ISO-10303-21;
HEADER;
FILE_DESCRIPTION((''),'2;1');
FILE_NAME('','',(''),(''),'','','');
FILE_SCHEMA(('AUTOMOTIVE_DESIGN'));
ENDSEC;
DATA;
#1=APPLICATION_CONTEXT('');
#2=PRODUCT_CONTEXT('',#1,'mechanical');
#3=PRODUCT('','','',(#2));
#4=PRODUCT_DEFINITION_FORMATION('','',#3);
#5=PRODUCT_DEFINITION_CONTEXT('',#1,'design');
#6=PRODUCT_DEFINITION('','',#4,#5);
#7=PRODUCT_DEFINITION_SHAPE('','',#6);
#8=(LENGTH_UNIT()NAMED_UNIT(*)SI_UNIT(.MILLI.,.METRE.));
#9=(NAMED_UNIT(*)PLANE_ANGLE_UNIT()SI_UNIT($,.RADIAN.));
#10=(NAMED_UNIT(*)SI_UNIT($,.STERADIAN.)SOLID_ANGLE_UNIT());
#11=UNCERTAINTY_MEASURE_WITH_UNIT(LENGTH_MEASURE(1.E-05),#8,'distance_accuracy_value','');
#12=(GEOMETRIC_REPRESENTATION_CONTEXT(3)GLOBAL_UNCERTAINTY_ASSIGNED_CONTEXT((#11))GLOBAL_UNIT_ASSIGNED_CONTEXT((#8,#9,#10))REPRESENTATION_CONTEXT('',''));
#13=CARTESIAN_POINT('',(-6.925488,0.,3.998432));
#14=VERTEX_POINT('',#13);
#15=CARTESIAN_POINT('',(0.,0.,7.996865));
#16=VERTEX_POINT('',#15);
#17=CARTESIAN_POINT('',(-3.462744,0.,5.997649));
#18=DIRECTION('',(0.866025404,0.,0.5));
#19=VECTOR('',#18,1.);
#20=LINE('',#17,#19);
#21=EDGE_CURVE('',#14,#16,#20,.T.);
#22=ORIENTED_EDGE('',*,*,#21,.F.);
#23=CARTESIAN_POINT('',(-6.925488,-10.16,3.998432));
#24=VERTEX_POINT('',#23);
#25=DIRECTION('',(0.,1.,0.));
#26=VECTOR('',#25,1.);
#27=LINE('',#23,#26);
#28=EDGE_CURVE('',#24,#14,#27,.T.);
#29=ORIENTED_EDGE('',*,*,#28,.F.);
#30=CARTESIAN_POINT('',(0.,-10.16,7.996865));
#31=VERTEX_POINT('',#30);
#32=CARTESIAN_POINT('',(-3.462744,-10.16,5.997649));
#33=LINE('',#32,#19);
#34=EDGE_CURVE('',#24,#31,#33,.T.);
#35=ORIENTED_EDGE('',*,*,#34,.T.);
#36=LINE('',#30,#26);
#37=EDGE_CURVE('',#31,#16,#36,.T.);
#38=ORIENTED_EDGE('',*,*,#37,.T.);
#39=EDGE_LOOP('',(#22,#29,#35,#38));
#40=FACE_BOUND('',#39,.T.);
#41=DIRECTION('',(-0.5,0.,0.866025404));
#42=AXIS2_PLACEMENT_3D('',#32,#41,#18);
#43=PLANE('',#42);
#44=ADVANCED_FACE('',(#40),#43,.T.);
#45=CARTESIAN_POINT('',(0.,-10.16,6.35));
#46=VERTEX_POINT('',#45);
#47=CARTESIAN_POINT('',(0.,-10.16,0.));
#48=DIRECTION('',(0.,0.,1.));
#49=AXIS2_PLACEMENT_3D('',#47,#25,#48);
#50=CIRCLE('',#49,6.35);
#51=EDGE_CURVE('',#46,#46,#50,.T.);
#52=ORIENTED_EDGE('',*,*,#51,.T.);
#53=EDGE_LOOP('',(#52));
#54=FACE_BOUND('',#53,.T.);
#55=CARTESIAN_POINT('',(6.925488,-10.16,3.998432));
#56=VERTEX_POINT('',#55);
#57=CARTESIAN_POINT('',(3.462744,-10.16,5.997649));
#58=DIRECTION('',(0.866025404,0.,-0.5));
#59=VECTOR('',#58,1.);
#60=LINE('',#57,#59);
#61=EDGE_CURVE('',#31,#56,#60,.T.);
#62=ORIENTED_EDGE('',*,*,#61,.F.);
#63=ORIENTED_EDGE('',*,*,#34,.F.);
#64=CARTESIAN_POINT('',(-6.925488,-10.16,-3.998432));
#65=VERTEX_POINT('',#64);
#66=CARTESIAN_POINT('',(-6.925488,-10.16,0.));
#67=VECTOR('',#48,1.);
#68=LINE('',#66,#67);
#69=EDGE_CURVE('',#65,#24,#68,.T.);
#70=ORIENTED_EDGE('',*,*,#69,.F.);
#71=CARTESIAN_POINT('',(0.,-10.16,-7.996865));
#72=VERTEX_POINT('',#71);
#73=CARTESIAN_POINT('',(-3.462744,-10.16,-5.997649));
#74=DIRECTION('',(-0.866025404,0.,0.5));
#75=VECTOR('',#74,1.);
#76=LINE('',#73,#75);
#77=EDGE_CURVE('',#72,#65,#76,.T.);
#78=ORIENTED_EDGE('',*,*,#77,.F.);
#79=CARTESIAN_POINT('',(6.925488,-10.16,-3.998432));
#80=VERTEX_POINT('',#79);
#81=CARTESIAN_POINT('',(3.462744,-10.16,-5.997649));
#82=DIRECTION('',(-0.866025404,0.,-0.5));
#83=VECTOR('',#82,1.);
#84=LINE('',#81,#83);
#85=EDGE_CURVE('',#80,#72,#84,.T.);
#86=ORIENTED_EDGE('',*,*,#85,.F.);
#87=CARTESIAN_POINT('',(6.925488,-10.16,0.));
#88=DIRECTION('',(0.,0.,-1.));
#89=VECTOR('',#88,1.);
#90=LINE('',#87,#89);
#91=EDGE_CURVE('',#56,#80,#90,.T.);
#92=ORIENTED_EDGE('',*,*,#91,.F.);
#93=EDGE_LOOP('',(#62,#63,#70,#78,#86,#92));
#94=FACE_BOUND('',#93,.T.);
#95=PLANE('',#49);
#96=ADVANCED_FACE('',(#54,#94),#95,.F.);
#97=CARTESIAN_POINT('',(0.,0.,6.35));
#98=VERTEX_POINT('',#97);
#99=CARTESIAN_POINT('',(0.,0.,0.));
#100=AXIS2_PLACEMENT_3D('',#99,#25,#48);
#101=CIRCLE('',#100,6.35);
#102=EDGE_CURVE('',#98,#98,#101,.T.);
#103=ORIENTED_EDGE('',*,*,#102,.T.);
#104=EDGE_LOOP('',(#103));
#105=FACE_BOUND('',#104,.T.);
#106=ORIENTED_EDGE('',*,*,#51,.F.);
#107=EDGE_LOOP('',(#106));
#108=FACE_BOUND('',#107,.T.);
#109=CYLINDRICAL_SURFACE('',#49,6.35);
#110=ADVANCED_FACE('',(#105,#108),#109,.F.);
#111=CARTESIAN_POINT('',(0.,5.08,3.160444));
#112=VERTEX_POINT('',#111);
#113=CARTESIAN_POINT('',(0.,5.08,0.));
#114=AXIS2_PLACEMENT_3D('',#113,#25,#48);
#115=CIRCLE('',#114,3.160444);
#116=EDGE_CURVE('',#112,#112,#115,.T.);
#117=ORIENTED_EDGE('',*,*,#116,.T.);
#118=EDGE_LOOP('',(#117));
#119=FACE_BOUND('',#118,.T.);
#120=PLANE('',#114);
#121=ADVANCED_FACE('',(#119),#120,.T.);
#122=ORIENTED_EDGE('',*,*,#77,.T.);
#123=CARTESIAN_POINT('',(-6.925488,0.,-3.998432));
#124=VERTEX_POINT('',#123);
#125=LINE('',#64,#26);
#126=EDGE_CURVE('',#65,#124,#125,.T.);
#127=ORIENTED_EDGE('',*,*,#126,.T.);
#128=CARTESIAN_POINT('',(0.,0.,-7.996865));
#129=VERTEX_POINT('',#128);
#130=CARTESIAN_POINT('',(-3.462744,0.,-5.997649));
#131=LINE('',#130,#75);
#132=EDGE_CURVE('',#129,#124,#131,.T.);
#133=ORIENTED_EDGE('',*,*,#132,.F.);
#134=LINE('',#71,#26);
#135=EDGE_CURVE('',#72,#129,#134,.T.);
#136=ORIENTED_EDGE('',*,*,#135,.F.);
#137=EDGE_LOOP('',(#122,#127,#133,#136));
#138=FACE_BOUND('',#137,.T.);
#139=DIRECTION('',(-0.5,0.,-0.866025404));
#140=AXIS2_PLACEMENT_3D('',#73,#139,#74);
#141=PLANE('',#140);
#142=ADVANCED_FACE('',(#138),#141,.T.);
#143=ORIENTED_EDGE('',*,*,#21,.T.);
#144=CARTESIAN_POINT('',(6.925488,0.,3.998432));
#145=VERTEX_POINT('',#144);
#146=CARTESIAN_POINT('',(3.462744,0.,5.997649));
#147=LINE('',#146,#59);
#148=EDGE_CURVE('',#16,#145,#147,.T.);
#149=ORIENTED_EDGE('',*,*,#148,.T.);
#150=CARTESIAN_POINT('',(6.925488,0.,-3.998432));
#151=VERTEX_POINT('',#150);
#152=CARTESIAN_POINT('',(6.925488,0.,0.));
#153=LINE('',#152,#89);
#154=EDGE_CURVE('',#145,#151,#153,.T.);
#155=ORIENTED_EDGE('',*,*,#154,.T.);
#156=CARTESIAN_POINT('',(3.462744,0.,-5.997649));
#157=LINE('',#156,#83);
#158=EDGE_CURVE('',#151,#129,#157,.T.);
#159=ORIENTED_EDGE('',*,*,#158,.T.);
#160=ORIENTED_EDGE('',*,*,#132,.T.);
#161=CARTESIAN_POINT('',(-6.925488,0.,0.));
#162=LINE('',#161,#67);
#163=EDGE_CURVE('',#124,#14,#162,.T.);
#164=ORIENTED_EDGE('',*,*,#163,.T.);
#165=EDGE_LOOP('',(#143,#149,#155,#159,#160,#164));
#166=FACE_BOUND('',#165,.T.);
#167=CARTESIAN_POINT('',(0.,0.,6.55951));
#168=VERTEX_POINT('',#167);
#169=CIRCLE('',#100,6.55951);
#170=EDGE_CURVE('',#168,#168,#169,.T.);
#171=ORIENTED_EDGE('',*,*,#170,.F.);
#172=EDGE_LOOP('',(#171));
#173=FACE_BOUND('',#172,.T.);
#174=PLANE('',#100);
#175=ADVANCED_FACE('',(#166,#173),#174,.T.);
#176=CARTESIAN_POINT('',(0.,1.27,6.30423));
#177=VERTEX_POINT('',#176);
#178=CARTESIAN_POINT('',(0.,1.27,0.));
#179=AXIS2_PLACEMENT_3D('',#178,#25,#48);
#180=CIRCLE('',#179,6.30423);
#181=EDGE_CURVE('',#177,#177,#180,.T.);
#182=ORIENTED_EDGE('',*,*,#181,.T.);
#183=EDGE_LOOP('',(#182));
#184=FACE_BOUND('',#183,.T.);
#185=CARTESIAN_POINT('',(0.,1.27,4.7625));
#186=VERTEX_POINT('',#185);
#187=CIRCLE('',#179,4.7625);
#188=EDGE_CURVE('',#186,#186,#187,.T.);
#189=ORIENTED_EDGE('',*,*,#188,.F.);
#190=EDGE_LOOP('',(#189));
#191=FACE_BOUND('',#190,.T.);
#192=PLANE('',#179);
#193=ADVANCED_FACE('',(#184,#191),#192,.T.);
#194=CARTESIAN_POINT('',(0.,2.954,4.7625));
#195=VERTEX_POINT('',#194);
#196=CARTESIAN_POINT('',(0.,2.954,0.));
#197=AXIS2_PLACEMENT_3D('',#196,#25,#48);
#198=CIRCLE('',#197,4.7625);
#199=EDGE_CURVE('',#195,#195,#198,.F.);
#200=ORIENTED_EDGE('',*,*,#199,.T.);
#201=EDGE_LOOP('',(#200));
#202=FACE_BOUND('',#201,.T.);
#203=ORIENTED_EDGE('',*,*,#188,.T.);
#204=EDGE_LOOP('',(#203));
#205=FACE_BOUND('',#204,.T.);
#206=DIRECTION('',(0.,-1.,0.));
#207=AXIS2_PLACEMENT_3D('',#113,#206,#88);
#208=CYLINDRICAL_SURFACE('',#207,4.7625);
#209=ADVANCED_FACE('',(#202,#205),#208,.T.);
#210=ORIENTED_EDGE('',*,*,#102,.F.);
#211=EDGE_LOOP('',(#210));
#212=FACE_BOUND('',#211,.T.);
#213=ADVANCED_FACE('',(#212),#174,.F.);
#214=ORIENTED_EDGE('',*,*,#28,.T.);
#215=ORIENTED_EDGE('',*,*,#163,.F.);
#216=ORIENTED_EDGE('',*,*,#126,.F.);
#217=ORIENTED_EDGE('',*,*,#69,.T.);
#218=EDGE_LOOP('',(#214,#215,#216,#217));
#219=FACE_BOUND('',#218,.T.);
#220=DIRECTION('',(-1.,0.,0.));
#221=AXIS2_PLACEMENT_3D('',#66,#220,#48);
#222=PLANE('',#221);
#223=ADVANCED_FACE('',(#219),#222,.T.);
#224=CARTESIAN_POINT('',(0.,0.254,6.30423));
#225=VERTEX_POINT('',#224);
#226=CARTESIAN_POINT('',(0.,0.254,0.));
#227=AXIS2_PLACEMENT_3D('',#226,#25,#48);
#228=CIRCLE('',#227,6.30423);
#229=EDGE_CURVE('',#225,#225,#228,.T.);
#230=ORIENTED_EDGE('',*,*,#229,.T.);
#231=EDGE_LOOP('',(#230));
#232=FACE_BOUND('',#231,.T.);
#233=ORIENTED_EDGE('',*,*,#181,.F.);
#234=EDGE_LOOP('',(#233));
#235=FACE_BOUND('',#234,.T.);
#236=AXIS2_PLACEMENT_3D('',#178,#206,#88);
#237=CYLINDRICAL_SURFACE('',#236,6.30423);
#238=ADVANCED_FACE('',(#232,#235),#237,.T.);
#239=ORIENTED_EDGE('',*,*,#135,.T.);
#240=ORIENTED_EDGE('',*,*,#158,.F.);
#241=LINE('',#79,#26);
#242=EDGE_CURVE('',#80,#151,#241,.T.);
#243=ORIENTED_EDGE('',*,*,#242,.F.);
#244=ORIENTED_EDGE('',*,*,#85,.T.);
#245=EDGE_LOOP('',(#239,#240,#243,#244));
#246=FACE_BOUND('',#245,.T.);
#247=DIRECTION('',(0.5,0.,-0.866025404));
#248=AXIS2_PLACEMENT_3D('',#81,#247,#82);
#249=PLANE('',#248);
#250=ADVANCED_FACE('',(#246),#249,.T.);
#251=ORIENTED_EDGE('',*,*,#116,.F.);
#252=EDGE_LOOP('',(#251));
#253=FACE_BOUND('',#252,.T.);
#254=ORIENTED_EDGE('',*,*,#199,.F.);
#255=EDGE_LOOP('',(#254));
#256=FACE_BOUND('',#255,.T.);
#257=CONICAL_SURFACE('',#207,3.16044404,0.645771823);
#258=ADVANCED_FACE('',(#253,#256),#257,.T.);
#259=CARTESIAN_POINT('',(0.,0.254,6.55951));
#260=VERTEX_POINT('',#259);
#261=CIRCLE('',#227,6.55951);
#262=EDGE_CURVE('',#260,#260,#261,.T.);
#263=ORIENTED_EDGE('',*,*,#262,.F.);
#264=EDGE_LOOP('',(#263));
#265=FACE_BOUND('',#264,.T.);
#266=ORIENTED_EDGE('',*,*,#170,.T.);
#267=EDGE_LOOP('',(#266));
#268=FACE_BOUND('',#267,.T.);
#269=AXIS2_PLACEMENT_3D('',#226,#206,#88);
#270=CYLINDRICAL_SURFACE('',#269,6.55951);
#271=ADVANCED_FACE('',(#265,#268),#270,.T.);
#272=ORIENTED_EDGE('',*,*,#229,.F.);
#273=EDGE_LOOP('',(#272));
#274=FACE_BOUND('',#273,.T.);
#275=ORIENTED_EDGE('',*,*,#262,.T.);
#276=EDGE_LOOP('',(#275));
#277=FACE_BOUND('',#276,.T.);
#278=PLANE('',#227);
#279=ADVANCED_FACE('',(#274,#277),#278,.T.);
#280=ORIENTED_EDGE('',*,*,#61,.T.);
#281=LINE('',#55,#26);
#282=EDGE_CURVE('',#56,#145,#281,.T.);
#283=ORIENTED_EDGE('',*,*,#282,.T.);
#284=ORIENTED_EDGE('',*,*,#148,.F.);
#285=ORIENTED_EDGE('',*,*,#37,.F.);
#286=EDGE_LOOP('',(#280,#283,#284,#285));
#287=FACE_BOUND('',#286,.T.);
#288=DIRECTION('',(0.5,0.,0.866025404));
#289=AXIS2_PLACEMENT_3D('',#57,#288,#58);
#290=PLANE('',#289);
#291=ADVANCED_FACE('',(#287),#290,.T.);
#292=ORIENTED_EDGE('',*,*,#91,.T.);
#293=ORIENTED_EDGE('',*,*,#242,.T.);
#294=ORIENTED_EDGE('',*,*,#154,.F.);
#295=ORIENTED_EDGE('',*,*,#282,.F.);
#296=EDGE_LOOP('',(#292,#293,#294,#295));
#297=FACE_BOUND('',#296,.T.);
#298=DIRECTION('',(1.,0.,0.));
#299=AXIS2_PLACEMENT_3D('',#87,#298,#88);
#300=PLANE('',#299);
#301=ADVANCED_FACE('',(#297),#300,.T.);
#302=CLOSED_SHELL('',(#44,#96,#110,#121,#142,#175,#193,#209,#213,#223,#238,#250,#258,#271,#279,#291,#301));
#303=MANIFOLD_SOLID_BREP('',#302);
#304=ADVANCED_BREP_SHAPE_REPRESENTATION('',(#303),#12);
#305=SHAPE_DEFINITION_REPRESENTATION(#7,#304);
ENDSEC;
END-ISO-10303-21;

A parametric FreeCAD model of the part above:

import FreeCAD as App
import Part
import Sketcher
from FreeCAD import Vector
Q = App.Units.Quantity


def edges_at(feature, points):
    """Names of the edges that pass closest to the given points."""
    edges = feature.Shape.Edges
    near = lambda p: min(range(len(edges)), key=lambda i: edges[i].distToShape(Part.Vertex(*p))[0])
    return sorted({f"Edge{near(p) + 1}" for p in points})

doc = App.newDocument("Part")
body = doc.addObject("PartDesign::Body", "Body")

# Sketch on XZ plane
sketch1 = body.newObject("Sketcher::SketchObject", "Sketch")
sketch1.AttachmentSupport = (doc.getObject("XZ_Plane"), [""])
sketch1.MapMode = "FlatFace"
sketch1.addGeometry(Part.Circle(Vector(0, 0, 0), Vector(0, 0, 1), 4.8), False)
sketch1.addConstraint([
    Sketcher.Constraint("Coincident", 0, 3, -1, 1),
    Sketcher.Constraint("Diameter", 0, Q("0.375 in")),
])
pad1 = body.newObject("PartDesign::Pad", "Pad")
pad1.Profile = sketch1
pad1.Length = Q("0.2 in")
pad1.Reversed = True

# Sketch on XZ plane
sketch2 = body.newObject("Sketcher::SketchObject", "Sketch001")
sketch2.AttachmentSupport = (doc.getObject("XZ_Plane"), [""])
sketch2.MapMode = "FlatFace"
sketch2.addGeometry(Part.Circle(Vector(0, 0, 0), Vector(0, 0, 1), 6), False)
sketch2.addConstraint([
    Sketcher.Constraint("Coincident", 0, 3, -1, 1),
    Sketcher.Constraint("Diameter", 0, Q("12.608459 mm")),
])
pad2 = body.newObject("PartDesign::Pad", "Pad001")
pad2.Profile = sketch2
pad2.Length = Q("0.05 in")
pad2.Reversed = True
doc.recompute()

chamfer = body.newObject("PartDesign::Chamfer", "Chamfer")
chamfer.Base = (pad2, edges_at(pad2, [(0, 5.08, -4.763)]))
chamfer.ChamferType = "Two distances"
chamfer.Size = 2.126
chamfer.Size2 = 1.602056
body2 = doc.addObject("PartDesign::Body", "Body001")

# Sketch on XZ plane
sketch3 = body2.newObject("Sketcher::SketchObject", "Sketch002")
sketch3.AttachmentSupport = (doc.getObject("XZ_Plane001"), [""])
sketch3.MapMode = "FlatFace"
sketch3.addGeometry([
    Part.LineSegment(Vector(7, 4, 0), Vector(7, -4, 0)),  # 0
    Part.LineSegment(Vector(7, -4, 0), Vector(0, -8, 0)),  # 1
    Part.LineSegment(Vector(0, -8, 0), Vector(-7, -4, 0)),  # 2
    Part.LineSegment(Vector(-7, -4, 0), Vector(-7, 4, 0)),  # 3
    Part.LineSegment(Vector(-7, 4, 0), Vector(0, 8, 0)),  # 4
    Part.LineSegment(Vector(0, 8, 0), Vector(7, 4, 0)),  # 5
    Part.Circle(Vector(0, 0, 0), Vector(0, 0, 1), 6),  # 6
], False)
sketch3.addConstraint([
    Sketcher.Constraint("Coincident", 0, 2, 1, 1),
    Sketcher.Constraint("Coincident", 1, 2, 2, 1),
    Sketcher.Constraint("Coincident", 2, 2, 3, 1),
    Sketcher.Constraint("Coincident", 3, 2, 4, 1),
    Sketcher.Constraint("Coincident", 4, 2, 5, 1),
    Sketcher.Constraint("Coincident", 5, 2, 0, 1),
    Sketcher.Constraint("Vertical", 0),
    Sketcher.Constraint("Vertical", 3),
    Sketcher.Constraint("Coincident", 6, 3, -1, 1),
    Sketcher.Constraint("Symmetric", 0, 2, 3, 2, -1, 1),
    Sketcher.Constraint("Symmetric", 1, 2, 4, 2, -1, 1),
    Sketcher.Constraint("PointOnObject", 1, 2, -2),
    Sketcher.Constraint("Parallel", 2, 5),
    Sketcher.Constraint("Horizontal", 0, 2, 2, 2),
    Sketcher.Constraint("Diameter", 6, Q("0.5 in")),
    Sketcher.Constraint("Angle", 1, Q("-150 deg")),
    Sketcher.Constraint("DistanceY", 0, 2, 0, 1, Q("7.996865 mm")),
    Sketcher.Constraint("DistanceX", -1, 1, 0, 2, Q("6.925488 mm")),
])
pad3 = body2.newObject("PartDesign::Pad", "Pad002")
pad3.Profile = sketch3
pad3.Length = Q("0.4 in")
body.AllowCompound = True
doc.recompute()

boolean = body.newObject("PartDesign::Boolean", "Boolean")
boolean.Type = "Fuse"
boolean.addObjects([body2])

# Sketch on XZ plane
sketch4 = body.newObject("Sketcher::SketchObject", "Sketch003")
sketch4.AttachmentSupport = (doc.getObject("XZ_Plane"), [""])
sketch4.MapMode = "FlatFace"
sketch4.addGeometry(Part.Circle(Vector(0, 0, 0), Vector(0, 0, 1), 7), False)
sketch4.addConstraint([
    Sketcher.Constraint("Coincident", 0, 3, -1, 1),
    Sketcher.Constraint("Diameter", 0, Q("13.119021 mm")),
])
pad4 = body.newObject("PartDesign::Pad", "Pad003")
pad4.Profile = sketch4
pad4.Length = Q("0.01 in")
pad4.Reversed = True

doc.recompute()
